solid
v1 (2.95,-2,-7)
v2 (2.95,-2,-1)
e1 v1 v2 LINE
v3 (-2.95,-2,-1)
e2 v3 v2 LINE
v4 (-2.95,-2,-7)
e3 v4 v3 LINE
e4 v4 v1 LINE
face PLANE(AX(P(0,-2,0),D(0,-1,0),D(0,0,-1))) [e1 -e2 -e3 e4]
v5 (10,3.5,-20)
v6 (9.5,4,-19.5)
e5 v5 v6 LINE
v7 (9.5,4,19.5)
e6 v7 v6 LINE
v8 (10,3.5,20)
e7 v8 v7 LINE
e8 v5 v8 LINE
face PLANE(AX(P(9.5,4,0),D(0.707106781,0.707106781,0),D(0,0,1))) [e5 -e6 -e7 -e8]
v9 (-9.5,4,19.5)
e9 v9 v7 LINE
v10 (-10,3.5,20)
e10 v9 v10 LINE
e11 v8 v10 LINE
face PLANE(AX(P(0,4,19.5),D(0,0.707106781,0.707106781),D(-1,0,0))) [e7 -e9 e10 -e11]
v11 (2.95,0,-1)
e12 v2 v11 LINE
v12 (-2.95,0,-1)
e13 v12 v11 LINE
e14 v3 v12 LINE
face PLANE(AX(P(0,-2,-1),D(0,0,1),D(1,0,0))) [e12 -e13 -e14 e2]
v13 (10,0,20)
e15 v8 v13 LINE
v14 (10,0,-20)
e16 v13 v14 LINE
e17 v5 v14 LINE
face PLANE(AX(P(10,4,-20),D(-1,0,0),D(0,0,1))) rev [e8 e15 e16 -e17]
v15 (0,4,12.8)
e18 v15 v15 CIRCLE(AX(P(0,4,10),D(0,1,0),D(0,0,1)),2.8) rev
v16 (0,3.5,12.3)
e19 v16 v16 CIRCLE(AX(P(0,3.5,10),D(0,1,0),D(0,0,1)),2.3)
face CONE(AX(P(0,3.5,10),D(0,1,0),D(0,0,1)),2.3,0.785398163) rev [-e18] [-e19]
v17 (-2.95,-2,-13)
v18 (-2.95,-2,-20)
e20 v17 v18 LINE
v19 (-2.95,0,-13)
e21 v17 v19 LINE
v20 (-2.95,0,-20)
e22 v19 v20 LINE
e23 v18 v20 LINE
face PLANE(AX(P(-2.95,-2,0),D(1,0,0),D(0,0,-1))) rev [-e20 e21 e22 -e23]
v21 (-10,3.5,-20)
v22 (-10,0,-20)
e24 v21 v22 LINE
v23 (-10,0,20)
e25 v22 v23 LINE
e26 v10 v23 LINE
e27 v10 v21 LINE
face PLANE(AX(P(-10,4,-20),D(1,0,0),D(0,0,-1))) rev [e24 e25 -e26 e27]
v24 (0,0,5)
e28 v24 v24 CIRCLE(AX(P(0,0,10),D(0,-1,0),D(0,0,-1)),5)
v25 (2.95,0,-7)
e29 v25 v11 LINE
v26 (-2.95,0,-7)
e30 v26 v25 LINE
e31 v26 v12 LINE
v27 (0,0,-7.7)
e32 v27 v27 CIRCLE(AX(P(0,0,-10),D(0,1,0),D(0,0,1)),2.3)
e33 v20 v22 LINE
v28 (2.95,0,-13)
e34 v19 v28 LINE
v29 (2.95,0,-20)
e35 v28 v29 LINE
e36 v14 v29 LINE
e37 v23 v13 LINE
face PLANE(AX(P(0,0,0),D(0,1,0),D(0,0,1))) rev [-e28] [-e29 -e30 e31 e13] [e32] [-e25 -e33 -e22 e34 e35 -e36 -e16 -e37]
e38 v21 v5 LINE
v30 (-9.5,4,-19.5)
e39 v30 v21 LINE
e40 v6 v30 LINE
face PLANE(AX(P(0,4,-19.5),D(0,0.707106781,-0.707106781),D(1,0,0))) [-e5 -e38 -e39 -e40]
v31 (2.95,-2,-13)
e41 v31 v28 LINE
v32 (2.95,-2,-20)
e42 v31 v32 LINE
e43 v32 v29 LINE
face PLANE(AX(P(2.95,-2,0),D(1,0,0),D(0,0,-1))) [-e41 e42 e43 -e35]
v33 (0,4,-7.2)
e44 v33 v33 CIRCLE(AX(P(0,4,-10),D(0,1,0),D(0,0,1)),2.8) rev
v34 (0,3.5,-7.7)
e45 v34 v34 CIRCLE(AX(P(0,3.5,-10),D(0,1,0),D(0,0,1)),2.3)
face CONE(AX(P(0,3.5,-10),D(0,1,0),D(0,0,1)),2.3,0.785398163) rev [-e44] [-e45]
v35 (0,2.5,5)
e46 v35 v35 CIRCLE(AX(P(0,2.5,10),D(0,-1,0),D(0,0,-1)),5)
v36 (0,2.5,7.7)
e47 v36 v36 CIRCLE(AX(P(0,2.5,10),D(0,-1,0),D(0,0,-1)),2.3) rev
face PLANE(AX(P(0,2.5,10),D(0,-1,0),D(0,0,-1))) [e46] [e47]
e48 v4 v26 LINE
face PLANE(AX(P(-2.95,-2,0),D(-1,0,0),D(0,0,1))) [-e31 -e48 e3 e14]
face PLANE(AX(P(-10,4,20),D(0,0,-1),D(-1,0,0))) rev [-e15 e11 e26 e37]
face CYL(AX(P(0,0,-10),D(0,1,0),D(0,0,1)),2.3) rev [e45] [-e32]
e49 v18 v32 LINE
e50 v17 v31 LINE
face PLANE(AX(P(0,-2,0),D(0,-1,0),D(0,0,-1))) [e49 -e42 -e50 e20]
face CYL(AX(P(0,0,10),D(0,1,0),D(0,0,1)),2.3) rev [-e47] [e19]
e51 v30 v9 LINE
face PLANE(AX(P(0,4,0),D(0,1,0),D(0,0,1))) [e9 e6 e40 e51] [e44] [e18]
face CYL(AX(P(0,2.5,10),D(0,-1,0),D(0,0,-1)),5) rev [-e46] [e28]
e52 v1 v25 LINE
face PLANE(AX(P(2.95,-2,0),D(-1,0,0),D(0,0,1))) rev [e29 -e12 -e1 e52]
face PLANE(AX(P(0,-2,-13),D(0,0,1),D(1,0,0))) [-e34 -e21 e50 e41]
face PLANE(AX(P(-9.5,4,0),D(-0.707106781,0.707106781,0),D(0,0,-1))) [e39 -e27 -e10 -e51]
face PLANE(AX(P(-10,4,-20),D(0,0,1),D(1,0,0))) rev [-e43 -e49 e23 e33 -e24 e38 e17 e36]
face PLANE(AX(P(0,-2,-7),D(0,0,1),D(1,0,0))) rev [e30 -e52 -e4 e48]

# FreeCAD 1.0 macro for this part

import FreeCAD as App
import Part
import Sketcher
from FreeCAD import Vector


def edges_at(feature, points):
    """Names of the edges that pass closest to the given points."""
    edges = feature.Shape.Edges
    near = lambda p: min(range(len(edges)), key=lambda i: edges[i].distToShape(Part.Vertex(*p))[0])
    return sorted({f"Edge{near(p) + 1}" for p in points})


def add_polygon(sketch, points):
    """Adds a closed chain of lines whose ends are joined by coincident constraints."""
    first, n = sketch.GeometryCount, len(points)
    for a, b in zip(points, points[1:] + points[:1]):
        sketch.addGeometry(Part.LineSegment(App.Vector(*a, 0), App.Vector(*b, 0)), False)
    for i in range(n):
        sketch.addConstraint(Sketcher.Constraint("Coincident", first + i, 2, first + (i + 1) % n, 1))

doc = App.newDocument("Part")
body = doc.addObject("PartDesign::Body", "Body")

# Sketch on XZ plane
sketch1 = body.newObject("Sketcher::SketchObject", "Sketch")
sketch1.AttachmentSupport = (doc.getObject("XZ_Plane"), [""])
sketch1.MapMode = "FlatFace"
add_polygon(sketch1, [(-10, -20), (-10, 20), (10, 20), (10, -20)])  # lines 0-3
sketch1.addConstraint([
    Sketcher.Constraint("Vertical", 0),
    Sketcher.Constraint("Horizontal", 1),
    Sketcher.Constraint("Vertical", 2),
    Sketcher.Constraint("Horizontal", 3),
    Sketcher.Constraint("Symmetric", 0, 2, 2, 2, -1, 1),
    Sketcher.Constraint("DistanceX", 1, 1, 1, 2, 20.0),
    Sketcher.Constraint("DistanceY", 0, 1, 0, 2, 40.0),
])
pad1 = body.newObject("PartDesign::Pad", "Pad")
pad1.Profile = sketch1
pad1.Length = 4
pad1.Reversed = True

# Sketch on XZ plane
sketch2 = body.newObject("Sketcher::SketchObject", "Sketch001")
sketch2.AttachmentSupport = (doc.getObject("XZ_Plane"), [""])
sketch2.MapMode = "FlatFace"
sketch2.AttachmentOffset = App.Placement(Vector(0, 0, -4), App.Rotation())
sketch2.addGeometry([
    Part.Circle(Vector(0, -10, 0), Vector(0, 0, 1), 2.3),
    Part.Circle(Vector(0, 10, 0), Vector(0, 0, 1), 2.3),
], False)
sketch2.addConstraint([
    Sketcher.Constraint("Equal", 0, 1),
    Sketcher.Constraint("Symmetric", 0, 3, 1, 3, -1, 1),
    Sketcher.Constraint("PointOnObject", 0, 3, -2),
    Sketcher.Constraint("Diameter", 0, 4.6),
    Sketcher.Constraint("DistanceY", 0, 3, -1, 1, 10.0),
])
pocket1 = body.newObject("PartDesign::Pocket", "Pocket")
pocket1.Profile = sketch2
pocket1.Type = "ThroughAll"
pocket1.Midplane = True

# Sketch on XZ plane
sketch3 = body.newObject("Sketcher::SketchObject", "Sketch002")
sketch3.AttachmentSupport = (doc.getObject("XZ_Plane"), [""])
sketch3.MapMode = "FlatFace"
add_polygon(sketch3, [(-2.95, -1), (-2.95, -7), (2.95, -7), (2.95, -1)])  # lines 0-3
add_polygon(sketch3, [(-2.95, -13), (-2.95, -20), (2.95, -20), (2.95, -13)])  # lines 4-7
sketch3.addConstraint([
    Sketcher.Constraint("Vertical", 0),
    Sketcher.Constraint("Horizontal", 1),
    Sketcher.Constraint("Vertical", 2),
    Sketcher.Constraint("Horizontal", 3),
    Sketcher.Constraint("Vertical", 4),
    Sketcher.Constraint("Horizontal", 5),
    Sketcher.Constraint("Vertical", 6),
    Sketcher.Constraint("Horizontal", 7),
    Sketcher.Constraint("Vertical", 3, 2, 4, 2),
    Sketcher.Constraint("Vertical", 2, 2, 5, 2),
    Sketcher.Constraint("DistanceY", 0, 2, 0, 1, 6.0),
    Sketcher.Constraint("DistanceY", 4, 2, 4, 1, 7.0),
    Sketcher.Constraint("DistanceX", 1, 1, 1, 2, 5.9),
    Sketcher.Constraint("DistanceY", 0, 2, -1, 1, 7.0),
    Sketcher.Constraint("DistanceY", 4, 2, -1, 1, 20.0),
    Sketcher.Constraint("DistanceX", 0, 2, -1, 1, 2.95),
])
pad2 = body.newObject("PartDesign::Pad", "Pad001")
pad2.Profile = sketch3
pad2.Length = 2
doc.recompute()

chamfer = body.newObject("PartDesign::Chamfer", "Chamfer")
chamfer.Base = (pad2, edges_at(pad2, [
    (-10, 4, 0),
    (0, 4, 20),
    (-2.3, 4, -10),
    (-2.3, 4, 10),
    (10, 4, 0),
    (0, 4, -20),
]))
chamfer.Size = 0.5

# Sketch on XZ plane
sketch4 = body.newObject("Sketcher::SketchObject", "Sketch003")
sketch4.AttachmentSupport = (doc.getObject("XZ_Plane"), [""])
sketch4.MapMode = "FlatFace"
sketch4.addGeometry(Part.Circle(Vector(0, 10, 0), Vector(0, 0, 1), 5), False)
sketch4.addConstraint([
    Sketcher.Constraint("PointOnObject", 0, 3, -2),
    Sketcher.Constraint("Diameter", 0, 10.0),
    Sketcher.Constraint("DistanceY", -1, 1, 0, 3, 10.0),
])
pocket2 = body.newObject("PartDesign::Pocket", "Pocket001")
pocket2.Profile = sketch4
pocket2.Length = 2.5

doc.recompute()
